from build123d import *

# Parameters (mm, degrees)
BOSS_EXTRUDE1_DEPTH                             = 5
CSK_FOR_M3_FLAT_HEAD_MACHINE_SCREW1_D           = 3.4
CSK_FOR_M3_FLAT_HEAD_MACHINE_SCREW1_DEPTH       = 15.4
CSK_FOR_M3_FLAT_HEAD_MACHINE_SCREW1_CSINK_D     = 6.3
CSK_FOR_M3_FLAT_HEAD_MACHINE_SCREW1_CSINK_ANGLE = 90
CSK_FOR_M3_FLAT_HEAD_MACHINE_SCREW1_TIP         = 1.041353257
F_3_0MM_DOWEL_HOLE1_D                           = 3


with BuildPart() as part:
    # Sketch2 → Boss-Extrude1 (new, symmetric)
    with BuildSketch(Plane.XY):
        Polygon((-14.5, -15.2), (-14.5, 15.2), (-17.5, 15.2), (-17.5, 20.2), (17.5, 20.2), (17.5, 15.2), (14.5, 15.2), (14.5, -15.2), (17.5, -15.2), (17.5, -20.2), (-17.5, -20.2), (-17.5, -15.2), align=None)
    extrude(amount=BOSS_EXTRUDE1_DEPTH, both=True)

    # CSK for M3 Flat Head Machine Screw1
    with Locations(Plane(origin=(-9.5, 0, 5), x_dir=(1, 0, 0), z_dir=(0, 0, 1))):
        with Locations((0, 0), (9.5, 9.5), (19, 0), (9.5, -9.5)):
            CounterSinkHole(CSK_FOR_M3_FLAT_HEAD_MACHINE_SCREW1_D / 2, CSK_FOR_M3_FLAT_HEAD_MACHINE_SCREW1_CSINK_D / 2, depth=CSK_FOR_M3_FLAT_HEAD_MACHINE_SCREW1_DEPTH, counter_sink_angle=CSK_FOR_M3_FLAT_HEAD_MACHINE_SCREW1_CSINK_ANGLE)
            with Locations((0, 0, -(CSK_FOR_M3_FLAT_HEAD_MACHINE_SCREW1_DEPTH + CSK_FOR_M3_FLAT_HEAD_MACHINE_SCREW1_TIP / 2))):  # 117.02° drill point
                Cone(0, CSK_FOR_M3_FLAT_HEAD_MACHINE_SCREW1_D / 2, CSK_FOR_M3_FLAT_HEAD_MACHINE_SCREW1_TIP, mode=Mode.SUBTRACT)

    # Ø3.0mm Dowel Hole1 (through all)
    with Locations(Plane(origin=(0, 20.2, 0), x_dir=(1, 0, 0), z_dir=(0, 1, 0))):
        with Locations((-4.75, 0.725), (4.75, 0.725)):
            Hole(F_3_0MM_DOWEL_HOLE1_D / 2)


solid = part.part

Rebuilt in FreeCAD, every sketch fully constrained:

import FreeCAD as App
import Part
import Sketcher

V = App.Vector
Q = App.Units.Quantity

doc = App.newDocument("Part")
body = doc.addObject("PartDesign::Body", "Body")

sketch1 = body.newObject("Sketcher::SketchObject", "Sketch")
sketch1.AttachmentSupport = (doc.getObject("XY_Plane"), [""])
sketch1.MapMode = "FlatFace"
sketch1.addGeometry([
    Part.LineSegment(V(-14.5, 15.2, 0), V(-14.5, -15.2, 0)),
    Part.LineSegment(V(-14.5, -15.2, 0), V(-17.5, -15.2, 0)),
    Part.LineSegment(V(-17.5, -15.2, 0), V(-17.5, -20.2, 0)),
    Part.LineSegment(V(-17.5, -20.2, 0), V(17.5, -20.2, 0)),
    Part.LineSegment(V(17.5, -20.2, 0), V(17.5, -15.2, 0)),
    Part.LineSegment(V(17.5, -15.2, 0), V(14.5, -15.2, 0)),
    Part.LineSegment(V(14.5, -15.2, 0), V(14.5, 15.2, 0)),
    Part.LineSegment(V(14.5, 15.2, 0), V(17.5, 15.2, 0)),
    Part.LineSegment(V(17.5, 15.2, 0), V(17.5, 20.2, 0)),
    Part.LineSegment(V(17.5, 20.2, 0), V(-17.5, 20.2, 0)),
    Part.LineSegment(V(-17.5, 20.2, 0), V(-17.5, 15.2, 0)),
    Part.LineSegment(V(-17.5, 15.2, 0), V(-14.5, 15.2, 0)),
], False)
sketch1.addConstraint([
    Sketcher.Constraint("Coincident", 0, 2, 1, 1),
    Sketcher.Constraint("Coincident", 1, 2, 2, 1),
    Sketcher.Constraint("Coincident", 2, 2, 3, 1),
    Sketcher.Constraint("Coincident", 3, 2, 4, 1),
    Sketcher.Constraint("Coincident", 4, 2, 5, 1),
    Sketcher.Constraint("Coincident", 5, 2, 6, 1),
    Sketcher.Constraint("Coincident", 6, 2, 7, 1),
    Sketcher.Constraint("Coincident", 7, 2, 8, 1),
    Sketcher.Constraint("Coincident", 8, 2, 9, 1),
    Sketcher.Constraint("Coincident", 9, 2, 10, 1),
    Sketcher.Constraint("Coincident", 10, 2, 11, 1),
    Sketcher.Constraint("Coincident", 11, 2, 0, 1),
    Sketcher.Constraint("Vertical", 0),
    Sketcher.Constraint("Horizontal", 1),
    Sketcher.Constraint("Vertical", 2),
    Sketcher.Constraint("Horizontal", 3),
    Sketcher.Constraint("Vertical", 4),
    Sketcher.Constraint("Horizontal", 5),
    Sketcher.Constraint("Vertical", 6),
    Sketcher.Constraint("Horizontal", 7),
    Sketcher.Constraint("Vertical", 8),
    Sketcher.Constraint("Horizontal", 9),
    Sketcher.Constraint("Vertical", 10),
    Sketcher.Constraint("Horizontal", 11),
    Sketcher.Constraint("Symmetric", 0, 2, 6, 2, -1, 1),
    Sketcher.Constraint("Symmetric", 2, 2, 8, 2, -1, 1),
    Sketcher.Constraint("Symmetric", 4, 2, 10, 2, -1, 1),
    Sketcher.Constraint("Symmetric", 1, 2, 4, 2, -2),
    Sketcher.Constraint("DistanceX", 1, 2, 1, 1, Q("3 mm")),
    Sketcher.Constraint("DistanceX", 3, 1, 3, 2, Q("35 mm")),
    Sketcher.Constraint("DistanceY", 2, 2, 2, 1, Q("5 mm")),
    Sketcher.Constraint("DistanceY", 0, 2, 0, 1, Q("30.4 mm")),
])
pad1 = body.newObject("PartDesign::Pad", "Pad")
pad1.Profile = sketch1
pad1.Length = 10
pad1.Midplane = True

sketch2 = body.newObject("Sketcher::SketchObject", "Sketch001")
sketch2.AttachmentSupport = (doc.getObject("XY_Plane"), [""])
sketch2.MapMode = "FlatFace"
sketch2.AttachmentOffset = App.Placement(V(0, 0, 5), App.Rotation())
sketch2.addGeometry([
    Part.Circle(V(-9.5, 0, 0), V(0, 0, 1), 1.7),
    Part.Circle(V(0, 9.5, 0), V(0, 0, 1), 1.7),
    Part.Circle(V(9.5, 0, 0), V(0, 0, 1), 1.7),
    Part.Circle(V(0, -9.5, 0), V(0, 0, 1), 1.7),
], False)
sketch2.addConstraint([
    Sketcher.Constraint("Equal", 0, 1),
    Sketcher.Constraint("Equal", 1, 2),
    Sketcher.Constraint("Equal", 2, 3),
    Sketcher.Constraint("Symmetric", 0, 3, 2, 3, -1, 1),
    Sketcher.Constraint("Symmetric", 1, 3, 3, 3, -1, 1),
    Sketcher.Constraint("PointOnObject", 0, 3, -1),
    Sketcher.Constraint("PointOnObject", 1, 3, -2),
    Sketcher.Constraint("Diameter", 0, Q("3.4 mm")),
    Sketcher.Constraint("DistanceX", 0, 3, 2, 3, Q("19 mm")),
    Sketcher.Constraint("DistanceY", 3, 3, 1, 3, Q("19 mm")),
])
doc.recompute()
hole = body.newObject("PartDesign::Hole", "Hole")
hole.Profile = sketch2
hole.ThreadType = "None"
hole.Diameter = 3.4
hole.DepthType = "Dimension"
hole.Depth = 15.4
hole.DrillPoint = "Angled"
hole.DrillPointAngle = 117.02
hole.HoleCutType = "Countersink"
hole.HoleCutDiameter = 6.3
hole.HoleCutCountersinkAngle = 90

sketch3 = body.newObject("Sketcher::SketchObject", "Sketch002")
sketch3.AttachmentSupport = (doc.getObject("XZ_Plane"), [""])
sketch3.MapMode = "FlatFace"
sketch3.AttachmentOffset = App.Placement(V(0, 0, -20.2), App.Rotation())
sketch3.addGeometry([
    Part.Circle(V(-4.8, -0.7, 0), V(0, 0, 1), 1.5),
    Part.Circle(V(4.8, -0.7, 0), V(0, 0, 1), 1.5),
], False)
sketch3.addConstraint([
    Sketcher.Constraint("Equal", 0, 1),
    Sketcher.Constraint("Symmetric", 0, 3, 1, 3, -2),
    Sketcher.Constraint("Diameter", 0, Q("3 mm")),
    Sketcher.Constraint("DistanceX", 0, 3, 1, 3, Q("9.5 mm")),
    Sketcher.Constraint("DistanceY", 0, 3, -1, 1, Q("0.725 mm")),
])
doc.recompute()
hole2 = body.newObject("PartDesign::Hole", "Hole001")
hole2.Profile = sketch3
hole2.ThreadType = "None"
hole2.Diameter = 3
hole2.DepthType = "ThroughAll"
hole2.Reversed = True

doc.recompute()
